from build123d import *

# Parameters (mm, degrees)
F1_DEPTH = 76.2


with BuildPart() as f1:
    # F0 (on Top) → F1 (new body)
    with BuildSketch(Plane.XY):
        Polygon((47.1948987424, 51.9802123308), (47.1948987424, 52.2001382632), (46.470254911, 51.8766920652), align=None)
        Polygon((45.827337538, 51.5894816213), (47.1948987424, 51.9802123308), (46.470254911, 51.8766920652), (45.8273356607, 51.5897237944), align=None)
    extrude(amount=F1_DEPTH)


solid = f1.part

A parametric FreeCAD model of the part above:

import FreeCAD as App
import Part
import Sketcher
Q = App.Units.Quantity


def add_polygon(sketch, points):
    """Adds a closed chain of lines whose ends are joined by coincident constraints."""
    first, n = sketch.GeometryCount, len(points)
    for a, b in zip(points, points[1:] + points[:1]):
        sketch.addGeometry(Part.LineSegment(App.Vector(*a, 0), App.Vector(*b, 0)), False)
    for i in range(n):
        sketch.addConstraint(Sketcher.Constraint("Coincident", first + i, 2, first + (i + 1) % n, 1))

doc = App.newDocument("Part")
body = doc.addObject("PartDesign::Body", "Body")

# Sketch on XY plane
sketch1 = body.newObject("Sketcher::SketchObject", "Sketch")
sketch1.AttachmentSupport = (doc.getObject("XY_Plane"), [""])
sketch1.MapMode = "FlatFace"
add_polygon(sketch1, [(47.1949, 51.98021), (47.1949, 52.20014), (46.47025, 51.87669), (45.82734, 51.58972), (45.82734, 51.58948)])  # lines 0-4
sketch1.addConstraint([
    Sketcher.Constraint("Vertical", 0),
    Sketcher.Constraint("Vertical", 3),
    Sketcher.Constraint("Parallel", 1, 2),
    Sketcher.Constraint("DistanceX", -1, 1, 0, 2, Q("47.194899 mm")),
    Sketcher.Constraint("DistanceY", 0, 1, 0, 2, Q("0.219926 mm")),
    Sketcher.Constraint("DistanceY", 3, 2, 3, 1, Q("0.000242 mm")),
    Sketcher.Constraint("DistanceY", -1, 1, 0, 2, Q("52.200138 mm")),
    Sketcher.Constraint("DistanceY", -1, 1, 3, 2, Q("51.589482 mm")),
    Sketcher.Constraint("DistanceX", 2, 2, 1, 2, Q("0.642919 mm")),
    Sketcher.Constraint("DistanceY", 2, 2, 1, 2, Q("0.286968 mm")),
])
pad1 = body.newObject("PartDesign::Pad", "Pad")
pad1.Profile = sketch1
pad1.Length = Q("3 in")

doc.recompute()
